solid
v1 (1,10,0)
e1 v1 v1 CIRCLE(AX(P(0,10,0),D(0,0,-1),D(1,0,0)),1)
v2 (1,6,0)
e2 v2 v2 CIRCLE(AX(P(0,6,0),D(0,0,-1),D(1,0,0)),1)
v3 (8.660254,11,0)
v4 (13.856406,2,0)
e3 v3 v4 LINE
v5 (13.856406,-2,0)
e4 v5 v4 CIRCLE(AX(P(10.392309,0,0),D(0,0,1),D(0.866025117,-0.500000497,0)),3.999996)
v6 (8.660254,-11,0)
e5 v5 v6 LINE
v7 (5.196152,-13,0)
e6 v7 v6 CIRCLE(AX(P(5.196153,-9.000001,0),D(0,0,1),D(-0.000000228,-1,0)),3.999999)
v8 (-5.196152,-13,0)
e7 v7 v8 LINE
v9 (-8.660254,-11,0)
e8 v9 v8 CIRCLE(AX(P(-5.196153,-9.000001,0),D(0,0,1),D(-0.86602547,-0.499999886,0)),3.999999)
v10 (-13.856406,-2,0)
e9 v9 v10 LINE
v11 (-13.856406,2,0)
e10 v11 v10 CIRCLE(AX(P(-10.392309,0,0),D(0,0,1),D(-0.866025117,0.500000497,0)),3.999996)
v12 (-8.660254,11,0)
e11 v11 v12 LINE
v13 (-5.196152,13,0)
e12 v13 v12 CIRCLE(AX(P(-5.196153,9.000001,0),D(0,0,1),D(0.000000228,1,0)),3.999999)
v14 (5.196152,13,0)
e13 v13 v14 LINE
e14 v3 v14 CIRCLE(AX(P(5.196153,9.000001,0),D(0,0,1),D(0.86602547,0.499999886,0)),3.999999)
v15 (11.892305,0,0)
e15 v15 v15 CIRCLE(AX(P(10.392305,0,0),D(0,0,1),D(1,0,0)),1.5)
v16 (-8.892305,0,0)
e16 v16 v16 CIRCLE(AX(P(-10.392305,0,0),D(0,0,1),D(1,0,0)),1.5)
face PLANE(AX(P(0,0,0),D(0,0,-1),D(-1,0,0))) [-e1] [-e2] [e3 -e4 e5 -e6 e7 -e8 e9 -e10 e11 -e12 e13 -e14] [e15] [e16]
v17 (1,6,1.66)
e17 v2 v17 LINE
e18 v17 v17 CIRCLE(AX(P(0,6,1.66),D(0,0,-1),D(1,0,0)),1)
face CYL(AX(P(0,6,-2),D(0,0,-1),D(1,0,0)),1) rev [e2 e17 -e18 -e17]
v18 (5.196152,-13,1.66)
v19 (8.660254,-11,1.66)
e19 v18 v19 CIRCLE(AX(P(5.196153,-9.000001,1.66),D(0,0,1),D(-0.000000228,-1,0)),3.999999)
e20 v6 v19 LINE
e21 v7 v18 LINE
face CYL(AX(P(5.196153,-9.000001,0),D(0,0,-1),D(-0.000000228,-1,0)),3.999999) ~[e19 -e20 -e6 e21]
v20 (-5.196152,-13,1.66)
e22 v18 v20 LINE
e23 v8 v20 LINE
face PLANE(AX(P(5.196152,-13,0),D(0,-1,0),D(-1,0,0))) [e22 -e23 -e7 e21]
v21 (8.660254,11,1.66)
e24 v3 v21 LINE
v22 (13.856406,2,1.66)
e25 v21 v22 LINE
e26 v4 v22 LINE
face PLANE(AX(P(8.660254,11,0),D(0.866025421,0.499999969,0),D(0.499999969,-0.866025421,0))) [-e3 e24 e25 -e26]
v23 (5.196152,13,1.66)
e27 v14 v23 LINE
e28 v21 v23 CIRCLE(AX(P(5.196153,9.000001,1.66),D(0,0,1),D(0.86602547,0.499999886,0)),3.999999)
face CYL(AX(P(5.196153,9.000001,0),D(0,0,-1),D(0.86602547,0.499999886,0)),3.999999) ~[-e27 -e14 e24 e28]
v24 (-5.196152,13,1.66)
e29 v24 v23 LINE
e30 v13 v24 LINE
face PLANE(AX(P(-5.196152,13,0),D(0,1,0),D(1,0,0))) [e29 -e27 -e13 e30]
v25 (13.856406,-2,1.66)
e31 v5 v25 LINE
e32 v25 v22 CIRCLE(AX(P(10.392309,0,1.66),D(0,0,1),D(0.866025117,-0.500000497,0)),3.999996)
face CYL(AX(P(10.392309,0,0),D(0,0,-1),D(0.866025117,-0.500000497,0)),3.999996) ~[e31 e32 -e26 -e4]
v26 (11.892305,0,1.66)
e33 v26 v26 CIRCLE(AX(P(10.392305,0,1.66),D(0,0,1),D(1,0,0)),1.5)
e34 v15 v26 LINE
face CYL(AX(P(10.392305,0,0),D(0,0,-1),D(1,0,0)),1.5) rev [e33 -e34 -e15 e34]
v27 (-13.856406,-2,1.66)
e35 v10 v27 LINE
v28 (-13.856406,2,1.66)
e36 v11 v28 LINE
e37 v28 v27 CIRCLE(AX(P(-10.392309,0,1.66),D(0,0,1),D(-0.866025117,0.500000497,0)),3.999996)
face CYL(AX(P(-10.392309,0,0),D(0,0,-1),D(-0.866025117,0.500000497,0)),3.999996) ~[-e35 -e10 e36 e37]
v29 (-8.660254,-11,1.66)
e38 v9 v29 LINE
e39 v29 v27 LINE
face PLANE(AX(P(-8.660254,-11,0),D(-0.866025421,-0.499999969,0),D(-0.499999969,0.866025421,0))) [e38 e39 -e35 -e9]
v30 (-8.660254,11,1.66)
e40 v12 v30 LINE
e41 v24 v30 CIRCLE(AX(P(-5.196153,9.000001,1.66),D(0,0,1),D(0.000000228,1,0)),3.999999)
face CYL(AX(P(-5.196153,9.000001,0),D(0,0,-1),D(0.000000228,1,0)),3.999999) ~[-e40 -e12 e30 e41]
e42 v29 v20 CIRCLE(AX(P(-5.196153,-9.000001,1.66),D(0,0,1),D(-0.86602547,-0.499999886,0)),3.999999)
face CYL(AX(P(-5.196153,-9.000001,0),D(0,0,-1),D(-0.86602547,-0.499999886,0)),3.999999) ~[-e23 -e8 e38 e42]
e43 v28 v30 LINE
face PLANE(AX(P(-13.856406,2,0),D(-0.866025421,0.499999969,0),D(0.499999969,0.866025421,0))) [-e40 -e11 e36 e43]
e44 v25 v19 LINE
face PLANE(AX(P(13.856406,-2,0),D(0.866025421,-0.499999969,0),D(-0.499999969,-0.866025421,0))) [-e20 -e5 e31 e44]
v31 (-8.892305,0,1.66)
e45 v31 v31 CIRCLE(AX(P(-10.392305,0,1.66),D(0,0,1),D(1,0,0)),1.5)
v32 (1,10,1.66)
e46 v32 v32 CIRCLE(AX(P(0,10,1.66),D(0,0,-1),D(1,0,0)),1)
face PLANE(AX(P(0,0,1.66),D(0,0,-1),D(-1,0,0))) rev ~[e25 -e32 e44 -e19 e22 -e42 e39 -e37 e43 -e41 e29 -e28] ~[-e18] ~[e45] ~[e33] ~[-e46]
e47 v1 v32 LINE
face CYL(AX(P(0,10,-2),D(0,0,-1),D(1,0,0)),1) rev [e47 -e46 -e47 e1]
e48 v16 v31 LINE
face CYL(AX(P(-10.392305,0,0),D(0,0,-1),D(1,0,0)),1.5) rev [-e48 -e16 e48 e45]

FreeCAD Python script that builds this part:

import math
import FreeCAD as App
import Part
import Sketcher
from FreeCAD import Vector
Q = App.Units.Quantity

doc = App.newDocument("Part")
params = doc.addObject("Spreadsheet::Sheet", "Params")
for row, (alias, value) in enumerate([
    ("sketch1_diameter", "2 mm"),
    ("pad1_length", "10 mm"),
    ("sketch2_diameter", "2 mm"),
    ("pad2_length", "10 mm"),
    ("sketch3_diameter", "3 mm"),
    ("sketch3_radius", "3.999999 mm"),
    ("pad3_length", "1.66 mm"),
], start=1):
    params.set(f"A{row}", alias)
    params.set(f"B{row}", "=" + value)
    params.setAlias(f"B{row}", alias)

body = doc.addObject("PartDesign::Body", "Body")

# Sketch on XY plane
sketch1 = body.newObject("Sketcher::SketchObject", "Sketch")
sketch1.AttachmentSupport = (doc.getObject("XY_Plane"), [""])
sketch1.MapMode = "FlatFace"
sketch1.AttachmentOffset = App.Placement(Vector(0, 0, -2), App.Rotation())
sketch1.addGeometry(Part.Circle(Vector(0, 6, 0), Vector(0, 0, 1), 1), False)
sketch1.addConstraint([
    Sketcher.Constraint("PointOnObject", 0, 3, -2),
    Sketcher.Constraint("Diameter", 0, Q("2 mm")),
    Sketcher.Constraint("DistanceY", -1, 1, 0, 3, Q("6 mm")),
])
sketch1.setExpression("Constraints[1]", "Params.sketch1_diameter")
pad1 = body.newObject("PartDesign::Pad", "Pad")
pad1.Profile = sketch1
pad1.setExpression("Length", "Params.pad1_length")
body2 = doc.addObject("PartDesign::Body", "Body001")

# Sketch on XY plane
sketch2 = body2.newObject("Sketcher::SketchObject", "Sketch001")
sketch2.AttachmentSupport = (doc.getObject("XY_Plane001"), [""])
sketch2.MapMode = "FlatFace"
sketch2.AttachmentOffset = App.Placement(Vector(0, 0, -2), App.Rotation())
sketch2.addGeometry(Part.Circle(Vector(0, 10, 0), Vector(0, 0, 1), 1), False)
sketch2.addConstraint([
    Sketcher.Constraint("PointOnObject", 0, 3, -2),
    Sketcher.Constraint("Diameter", 0, Q("2 mm")),
    Sketcher.Constraint("DistanceY", -1, 1, 0, 3, Q("10 mm")),
])
sketch2.setExpression("Constraints[1]", "Params.sketch2_diameter")
pad2 = body2.newObject("PartDesign::Pad", "Pad001")
pad2.Profile = sketch2
pad2.setExpression("Length", "Params.pad2_length")
body3 = doc.addObject("PartDesign::Body", "Body002")

# Sketch on XY plane
sketch3 = body3.newObject("Sketcher::SketchObject", "Sketch002")
sketch3.AttachmentSupport = (doc.getObject("XY_Plane002"), [""])
sketch3.MapMode = "FlatFace"
sketch3.addGeometry([
    Part.LineSegment(Vector(-8.660254, 11, 0), Vector(-13.856406, 2, 0)),  # 0
    Part.ArcOfCircle(Part.Circle(Vector(-10.392309, 0, 0), Vector(0, 0, 1), 3.999996), math.radians(149.999967), math.radians(210.000033)),  # 1
    Part.LineSegment(Vector(-13.856406, -2, 0), Vector(-8.660254, -11, 0)),  # 2
    Part.ArcOfCircle(Part.Circle(Vector(-5.196153, -9.000001, 0), Vector(0, 0, 1), 3.999999), math.radians(-150.000008), math.radians(-89.999987)),  # 3
    Part.LineSegment(Vector(-5.196152, -13, 0), Vector(5.196152, -13, 0)),  # 4
    Part.ArcOfCircle(Part.Circle(Vector(5.196153, -9.000001, 0), Vector(0, 0, 1), 3.999999), math.radians(-90.000013), math.radians(-29.999992)),  # 5
    Part.LineSegment(Vector(8.660254, -11, 0), Vector(13.856406, -2, 0)),  # 6
    Part.ArcOfCircle(Part.Circle(Vector(10.392309, 0, 0), Vector(0, 0, 1), 3.999996), math.radians(-30.000033), math.radians(30.000033)),  # 7
    Part.LineSegment(Vector(13.856406, 2, 0), Vector(8.660254, 11, 0)),  # 8
    Part.ArcOfCircle(Part.Circle(Vector(5.196153, 9.000001, 0), Vector(0, 0, 1), 3.999999), math.radians(29.999992), math.radians(90.000013)),  # 9
    Part.LineSegment(Vector(5.196152, 13, 0), Vector(-5.196152, 13, 0)),  # 10
    Part.ArcOfCircle(Part.Circle(Vector(-5.196153, 9.000001, 0), Vector(0, 0, 1), 3.999999), math.radians(89.999987), math.radians(150.000008)),  # 11
    Part.Circle(Vector(10.392305, 0, 0), Vector(0, 0, 1), 1.5),  # 12
    Part.Circle(Vector(-10.392305, 0, 0), Vector(0, 0, 1), 1.5),  # 13
], False)
sketch3.addConstraint([
    Sketcher.Constraint("Tangent", 0, 2, 1, 1),
    Sketcher.Constraint("Tangent", 1, 2, 2, 1),
    Sketcher.Constraint("Tangent", 2, 2, 3, 1),
    Sketcher.Constraint("Tangent", 3, 2, 4, 1),
    Sketcher.Constraint("Tangent", 4, 2, 5, 1),
    Sketcher.Constraint("Tangent", 5, 2, 6, 1),
    Sketcher.Constraint("Tangent", 6, 2, 7, 1),
    Sketcher.Constraint("Tangent", 7, 2, 8, 1),
    Sketcher.Constraint("Tangent", 8, 2, 9, 1),
    Sketcher.Constraint("Tangent", 9, 2, 10, 1),
    Sketcher.Constraint("Tangent", 10, 2, 11, 1),
    Sketcher.Constraint("Tangent", 11, 2, 0, 1),
    Sketcher.Constraint("Horizontal", 4),
    Sketcher.Constraint("Horizontal", 10),
    Sketcher.Constraint("Coincident", 12, 3, 7, 3),
    Sketcher.Constraint("Coincident", 13, 3, 1, 3),
    Sketcher.Constraint("Equal", 3, 5),
    Sketcher.Constraint("Equal", 1, 7),
    Sketcher.Constraint("Equal", 5, 9),
    Sketcher.Constraint("Equal", 9, 11),
    Sketcher.Constraint("Equal", 12, 13),
    Sketcher.Constraint("Symmetric", 1, 3, 7, 3, -1, 1),
    Sketcher.Constraint("Symmetric", 3, 3, 9, 3, -1, 1),
    Sketcher.Constraint("Symmetric", 2, 2, 5, 2, -2),
    Sketcher.Constraint("Parallel", 0, 6),
    Sketcher.Constraint("Diameter", 12, Q("3 mm")),
    Sketcher.Constraint("Radius", 3, Q("3.999999 mm")),
    Sketcher.Constraint("Angle", 0, Q("-119.999998 deg")),
    Sketcher.Constraint("DistanceY", 3, 3, -1, 1, Q("9.000001 mm")),
    Sketcher.Constraint("DistanceY", -1, 1, 0, 2, Q("2 mm")),
    Sketcher.Constraint("DistanceX", 4, 1, 4, 2, Q("10.392304 mm")),
])
sketch3.setExpression("Constraints[25]", "Params.sketch3_diameter")
sketch3.setExpression("Constraints[26]", "Params.sketch3_radius")
pad3 = body3.newObject("PartDesign::Pad", "Pad002")
pad3.Profile = sketch3
pad3.setExpression("Length", "Params.pad3_length")
doc.recompute()

boolean = body3.newObject("PartDesign::Boolean", "Boolean")
boolean.Type = "Cut"
boolean.addObjects([body2])
doc.recompute()

boolean2 = body3.newObject("PartDesign::Boolean", "Boolean001")
boolean2.Type = "Cut"
boolean2.addObjects([body])

doc.recompute()
